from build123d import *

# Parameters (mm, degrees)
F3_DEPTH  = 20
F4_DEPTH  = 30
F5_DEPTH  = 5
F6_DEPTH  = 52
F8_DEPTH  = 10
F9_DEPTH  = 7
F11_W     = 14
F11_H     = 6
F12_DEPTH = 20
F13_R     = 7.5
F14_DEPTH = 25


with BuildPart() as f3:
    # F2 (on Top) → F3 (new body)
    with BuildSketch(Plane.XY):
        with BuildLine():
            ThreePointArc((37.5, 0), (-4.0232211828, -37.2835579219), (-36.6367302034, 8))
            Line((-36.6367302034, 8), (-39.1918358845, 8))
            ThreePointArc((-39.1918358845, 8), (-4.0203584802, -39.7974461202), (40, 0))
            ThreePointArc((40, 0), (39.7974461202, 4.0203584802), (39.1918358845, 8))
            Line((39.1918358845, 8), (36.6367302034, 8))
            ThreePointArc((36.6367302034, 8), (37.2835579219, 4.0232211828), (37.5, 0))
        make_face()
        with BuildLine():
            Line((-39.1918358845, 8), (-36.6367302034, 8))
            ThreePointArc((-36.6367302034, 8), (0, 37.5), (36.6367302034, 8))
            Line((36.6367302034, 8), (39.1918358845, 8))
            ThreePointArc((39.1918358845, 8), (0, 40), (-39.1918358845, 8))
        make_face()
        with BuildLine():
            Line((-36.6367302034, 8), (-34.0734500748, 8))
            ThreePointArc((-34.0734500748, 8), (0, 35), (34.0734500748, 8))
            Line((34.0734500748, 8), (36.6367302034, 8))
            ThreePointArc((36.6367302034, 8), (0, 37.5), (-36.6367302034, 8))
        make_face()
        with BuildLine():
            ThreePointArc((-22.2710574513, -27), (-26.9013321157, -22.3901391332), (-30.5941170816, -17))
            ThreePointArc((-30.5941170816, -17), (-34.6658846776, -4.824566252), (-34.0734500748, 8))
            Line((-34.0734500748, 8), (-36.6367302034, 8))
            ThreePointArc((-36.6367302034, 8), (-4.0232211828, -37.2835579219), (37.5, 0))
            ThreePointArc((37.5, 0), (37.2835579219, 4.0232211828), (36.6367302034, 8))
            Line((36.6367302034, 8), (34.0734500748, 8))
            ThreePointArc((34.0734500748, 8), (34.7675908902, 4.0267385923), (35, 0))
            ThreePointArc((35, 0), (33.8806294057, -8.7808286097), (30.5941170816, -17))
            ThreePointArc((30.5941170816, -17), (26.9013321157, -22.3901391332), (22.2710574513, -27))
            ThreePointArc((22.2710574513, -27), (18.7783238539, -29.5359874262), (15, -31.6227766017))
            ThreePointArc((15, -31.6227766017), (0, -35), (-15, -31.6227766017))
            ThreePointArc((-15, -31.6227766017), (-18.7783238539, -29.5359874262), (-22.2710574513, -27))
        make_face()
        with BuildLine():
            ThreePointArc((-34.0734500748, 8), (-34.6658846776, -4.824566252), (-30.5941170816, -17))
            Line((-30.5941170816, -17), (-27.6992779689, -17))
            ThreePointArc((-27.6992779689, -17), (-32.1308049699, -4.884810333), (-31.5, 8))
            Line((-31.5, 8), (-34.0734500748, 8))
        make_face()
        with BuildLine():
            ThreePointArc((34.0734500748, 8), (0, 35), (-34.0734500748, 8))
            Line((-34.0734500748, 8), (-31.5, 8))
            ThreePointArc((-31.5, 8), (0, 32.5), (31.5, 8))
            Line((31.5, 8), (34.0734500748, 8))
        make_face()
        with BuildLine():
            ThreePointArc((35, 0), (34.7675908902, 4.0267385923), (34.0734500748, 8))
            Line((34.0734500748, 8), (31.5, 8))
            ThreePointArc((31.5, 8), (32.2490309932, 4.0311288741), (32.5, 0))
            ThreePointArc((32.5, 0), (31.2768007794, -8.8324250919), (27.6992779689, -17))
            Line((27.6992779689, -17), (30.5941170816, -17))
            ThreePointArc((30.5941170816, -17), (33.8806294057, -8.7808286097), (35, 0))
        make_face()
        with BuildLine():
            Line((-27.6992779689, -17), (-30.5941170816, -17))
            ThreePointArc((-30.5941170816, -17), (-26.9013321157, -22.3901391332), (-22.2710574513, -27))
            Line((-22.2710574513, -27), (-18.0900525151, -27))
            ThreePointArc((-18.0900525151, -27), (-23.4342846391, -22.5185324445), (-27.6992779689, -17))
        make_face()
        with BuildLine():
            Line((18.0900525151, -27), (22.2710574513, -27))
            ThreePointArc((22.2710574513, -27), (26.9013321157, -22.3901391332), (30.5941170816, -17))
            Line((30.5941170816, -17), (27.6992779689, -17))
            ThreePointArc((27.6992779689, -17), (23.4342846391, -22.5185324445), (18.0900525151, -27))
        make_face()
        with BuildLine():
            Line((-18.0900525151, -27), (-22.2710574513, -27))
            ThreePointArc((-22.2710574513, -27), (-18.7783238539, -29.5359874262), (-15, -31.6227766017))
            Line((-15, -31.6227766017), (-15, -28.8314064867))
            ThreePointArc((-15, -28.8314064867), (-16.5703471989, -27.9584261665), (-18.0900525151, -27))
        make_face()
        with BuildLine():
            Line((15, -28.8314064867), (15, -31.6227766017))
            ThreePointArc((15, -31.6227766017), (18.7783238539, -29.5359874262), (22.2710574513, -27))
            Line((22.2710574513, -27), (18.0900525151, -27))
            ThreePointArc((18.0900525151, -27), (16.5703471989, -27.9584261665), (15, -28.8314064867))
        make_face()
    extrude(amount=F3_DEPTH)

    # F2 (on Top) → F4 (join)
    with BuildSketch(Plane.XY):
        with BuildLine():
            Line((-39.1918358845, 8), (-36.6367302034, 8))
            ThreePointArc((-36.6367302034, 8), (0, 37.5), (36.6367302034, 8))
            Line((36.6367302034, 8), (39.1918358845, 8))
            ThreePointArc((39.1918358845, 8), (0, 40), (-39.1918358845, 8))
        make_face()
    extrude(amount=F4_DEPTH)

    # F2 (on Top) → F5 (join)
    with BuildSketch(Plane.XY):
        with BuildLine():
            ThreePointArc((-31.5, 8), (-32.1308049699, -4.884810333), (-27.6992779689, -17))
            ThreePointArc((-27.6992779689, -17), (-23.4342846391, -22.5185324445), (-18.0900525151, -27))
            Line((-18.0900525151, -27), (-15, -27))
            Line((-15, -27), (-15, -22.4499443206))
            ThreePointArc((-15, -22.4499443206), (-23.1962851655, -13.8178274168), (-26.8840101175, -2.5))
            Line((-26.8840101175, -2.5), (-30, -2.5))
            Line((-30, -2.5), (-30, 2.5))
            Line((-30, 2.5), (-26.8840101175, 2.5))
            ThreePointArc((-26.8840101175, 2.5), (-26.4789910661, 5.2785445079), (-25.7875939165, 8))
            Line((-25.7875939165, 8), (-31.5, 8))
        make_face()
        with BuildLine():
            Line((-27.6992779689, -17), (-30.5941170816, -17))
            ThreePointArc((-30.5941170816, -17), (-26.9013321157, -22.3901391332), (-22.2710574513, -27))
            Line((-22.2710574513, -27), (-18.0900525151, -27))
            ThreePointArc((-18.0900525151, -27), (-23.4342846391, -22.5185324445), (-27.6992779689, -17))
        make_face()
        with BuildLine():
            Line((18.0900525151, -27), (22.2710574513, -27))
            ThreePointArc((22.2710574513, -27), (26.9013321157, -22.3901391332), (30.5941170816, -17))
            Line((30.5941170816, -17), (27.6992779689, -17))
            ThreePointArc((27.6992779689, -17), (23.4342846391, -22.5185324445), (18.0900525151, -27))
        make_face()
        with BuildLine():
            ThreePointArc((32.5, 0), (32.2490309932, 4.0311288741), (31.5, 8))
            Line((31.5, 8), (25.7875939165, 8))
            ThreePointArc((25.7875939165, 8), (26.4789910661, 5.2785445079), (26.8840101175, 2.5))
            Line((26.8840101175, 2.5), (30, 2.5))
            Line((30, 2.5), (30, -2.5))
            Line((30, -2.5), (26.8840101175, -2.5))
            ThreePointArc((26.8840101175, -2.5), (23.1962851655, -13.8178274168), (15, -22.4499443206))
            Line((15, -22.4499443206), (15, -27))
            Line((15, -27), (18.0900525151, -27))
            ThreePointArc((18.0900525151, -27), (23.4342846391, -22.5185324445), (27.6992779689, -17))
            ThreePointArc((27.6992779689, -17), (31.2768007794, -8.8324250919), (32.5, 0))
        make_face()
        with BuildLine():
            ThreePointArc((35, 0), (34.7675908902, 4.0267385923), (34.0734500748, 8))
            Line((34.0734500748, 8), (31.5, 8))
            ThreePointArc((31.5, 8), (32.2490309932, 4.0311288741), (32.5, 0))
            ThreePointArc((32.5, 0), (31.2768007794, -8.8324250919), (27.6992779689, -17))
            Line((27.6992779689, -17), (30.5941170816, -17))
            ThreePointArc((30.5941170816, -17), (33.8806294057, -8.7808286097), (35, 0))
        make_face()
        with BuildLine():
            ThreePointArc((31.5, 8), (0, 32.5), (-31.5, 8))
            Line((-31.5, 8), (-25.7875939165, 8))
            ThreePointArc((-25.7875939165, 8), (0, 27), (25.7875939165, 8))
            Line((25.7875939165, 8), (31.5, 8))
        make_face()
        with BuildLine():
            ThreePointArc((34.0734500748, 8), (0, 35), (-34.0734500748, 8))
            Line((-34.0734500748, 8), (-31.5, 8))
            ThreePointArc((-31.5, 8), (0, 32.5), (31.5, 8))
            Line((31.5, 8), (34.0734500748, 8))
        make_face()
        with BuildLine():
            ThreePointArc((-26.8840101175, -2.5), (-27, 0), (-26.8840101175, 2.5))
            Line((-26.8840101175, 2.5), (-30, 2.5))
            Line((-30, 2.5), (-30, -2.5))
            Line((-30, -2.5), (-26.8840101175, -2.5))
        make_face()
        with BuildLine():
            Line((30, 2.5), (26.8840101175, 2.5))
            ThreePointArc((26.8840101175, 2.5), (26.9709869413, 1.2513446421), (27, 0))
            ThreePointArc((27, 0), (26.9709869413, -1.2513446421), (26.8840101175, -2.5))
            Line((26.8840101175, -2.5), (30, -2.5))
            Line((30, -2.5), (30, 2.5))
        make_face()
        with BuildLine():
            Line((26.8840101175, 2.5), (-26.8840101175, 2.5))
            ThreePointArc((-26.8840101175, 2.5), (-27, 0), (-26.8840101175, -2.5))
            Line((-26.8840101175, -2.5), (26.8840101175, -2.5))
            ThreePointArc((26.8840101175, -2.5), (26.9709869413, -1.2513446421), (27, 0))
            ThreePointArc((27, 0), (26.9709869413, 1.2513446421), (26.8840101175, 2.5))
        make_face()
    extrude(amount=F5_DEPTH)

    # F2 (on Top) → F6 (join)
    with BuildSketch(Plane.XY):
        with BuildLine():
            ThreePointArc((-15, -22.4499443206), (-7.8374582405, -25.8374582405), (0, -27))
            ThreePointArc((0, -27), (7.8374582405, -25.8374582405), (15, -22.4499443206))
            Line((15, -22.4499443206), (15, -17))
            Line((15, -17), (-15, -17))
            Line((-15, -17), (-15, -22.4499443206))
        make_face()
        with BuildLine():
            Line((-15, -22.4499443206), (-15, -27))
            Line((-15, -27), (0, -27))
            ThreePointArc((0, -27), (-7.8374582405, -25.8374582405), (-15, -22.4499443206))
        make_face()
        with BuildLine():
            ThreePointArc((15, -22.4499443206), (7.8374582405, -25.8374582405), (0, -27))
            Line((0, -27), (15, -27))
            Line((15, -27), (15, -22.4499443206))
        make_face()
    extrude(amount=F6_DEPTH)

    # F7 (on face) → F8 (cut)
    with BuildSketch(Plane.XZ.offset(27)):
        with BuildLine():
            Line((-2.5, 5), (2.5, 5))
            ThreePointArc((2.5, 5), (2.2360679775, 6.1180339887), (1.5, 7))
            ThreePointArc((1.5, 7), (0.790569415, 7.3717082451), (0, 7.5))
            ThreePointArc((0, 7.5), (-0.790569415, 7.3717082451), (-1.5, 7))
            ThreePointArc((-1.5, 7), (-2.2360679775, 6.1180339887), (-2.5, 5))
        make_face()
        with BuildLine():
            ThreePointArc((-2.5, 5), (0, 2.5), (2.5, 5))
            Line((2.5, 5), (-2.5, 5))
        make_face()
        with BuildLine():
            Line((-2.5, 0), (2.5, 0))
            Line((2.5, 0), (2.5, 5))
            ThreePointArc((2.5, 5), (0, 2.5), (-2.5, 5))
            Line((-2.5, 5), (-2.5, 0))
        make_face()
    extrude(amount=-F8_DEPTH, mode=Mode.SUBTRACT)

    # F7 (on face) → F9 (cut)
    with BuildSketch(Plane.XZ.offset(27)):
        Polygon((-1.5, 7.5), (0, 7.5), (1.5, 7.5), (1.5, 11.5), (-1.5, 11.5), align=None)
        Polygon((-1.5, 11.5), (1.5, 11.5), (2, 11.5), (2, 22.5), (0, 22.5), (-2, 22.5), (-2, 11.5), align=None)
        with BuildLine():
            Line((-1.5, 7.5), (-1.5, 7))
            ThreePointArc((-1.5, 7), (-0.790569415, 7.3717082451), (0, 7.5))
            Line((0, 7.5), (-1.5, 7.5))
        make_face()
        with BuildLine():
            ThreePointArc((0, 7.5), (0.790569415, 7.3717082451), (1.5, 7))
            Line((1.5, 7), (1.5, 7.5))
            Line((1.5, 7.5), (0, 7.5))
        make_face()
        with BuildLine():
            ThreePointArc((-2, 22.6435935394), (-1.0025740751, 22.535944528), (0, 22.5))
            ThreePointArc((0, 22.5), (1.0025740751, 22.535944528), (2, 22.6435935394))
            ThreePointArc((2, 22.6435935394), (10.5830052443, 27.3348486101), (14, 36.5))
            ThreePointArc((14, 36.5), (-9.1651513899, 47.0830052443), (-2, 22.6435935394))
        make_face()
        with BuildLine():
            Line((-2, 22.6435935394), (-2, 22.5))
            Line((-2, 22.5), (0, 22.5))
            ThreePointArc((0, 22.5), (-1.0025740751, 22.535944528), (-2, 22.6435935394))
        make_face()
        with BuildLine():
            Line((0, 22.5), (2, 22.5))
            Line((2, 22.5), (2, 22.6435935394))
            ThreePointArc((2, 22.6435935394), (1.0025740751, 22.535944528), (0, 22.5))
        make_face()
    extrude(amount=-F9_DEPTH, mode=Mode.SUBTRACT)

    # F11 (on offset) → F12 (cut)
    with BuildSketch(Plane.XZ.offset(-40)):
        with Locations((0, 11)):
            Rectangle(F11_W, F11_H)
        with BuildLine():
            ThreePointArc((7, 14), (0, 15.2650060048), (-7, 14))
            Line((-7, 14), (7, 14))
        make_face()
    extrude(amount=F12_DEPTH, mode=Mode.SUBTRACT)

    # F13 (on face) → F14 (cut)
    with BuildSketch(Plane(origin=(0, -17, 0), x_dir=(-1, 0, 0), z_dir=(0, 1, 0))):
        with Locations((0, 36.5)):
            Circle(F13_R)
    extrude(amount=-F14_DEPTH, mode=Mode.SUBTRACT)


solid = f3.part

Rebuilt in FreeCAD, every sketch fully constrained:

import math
import FreeCAD as App
import Part
import Sketcher

V = App.Vector
Q = App.Units.Quantity

doc = App.newDocument("Part")
body = doc.addObject("PartDesign::Body", "Body")

# Sketch on XY plane
sketch1 = body.newObject("Sketcher::SketchObject", "Sketch")
sketch1.AttachmentSupport = (doc.getObject("XY_Plane"), [""])
sketch1.MapMode = "FlatFace"
sketch1.addGeometry([
    Part.ArcOfCircle(Part.Circle(V(0, 0, 0), V(0, 0, 1), 40), math.radians(168.463041), math.radians(360)),  # 0
    Part.ArcOfCircle(Part.Circle(V(0, 0, 0), V(0, 0, 1), 40), math.radians(0), math.radians(11.536959)),  # 1
    Part.ArcOfCircle(Part.Circle(V(0, 0, 0), V(0, 0, 1), 40), math.radians(11.536959), math.radians(168.463041)),  # 2
    Part.ArcOfCircle(Part.Circle(V(0, 0, 0), V(0, 0, 1), 35), math.radians(-115.376934), math.radians(-64.623066)),  # 3
    Part.LineSegment(V(-15, -31.622777, 0), V(-15, -28.831406, 0)),  # 4
    Part.ArcOfCircle(Part.Circle(V(0, 0, 0), V(0, 0, 1), 32.5), math.radians(-123.822162), math.radians(-117.486426)),  # 5
    Part.ArcOfCircle(Part.Circle(V(0, 0, 0), V(0, 0, 1), 32.5), math.radians(-148.461127), math.radians(-123.822162)),  # 6
    Part.ArcOfCircle(Part.Circle(V(0, 0, 0), V(0, 0, 1), 32.5), math.radians(165.749967), math.radians(211.538873)),  # 7
    Part.ArcOfCircle(Part.Circle(V(0, 0, 0), V(0, 0, 1), 32.5), math.radians(0), math.radians(165.749967)),  # 8
    Part.ArcOfCircle(Part.Circle(V(0, 0, 0), V(0, 0, 1), 32.5), math.radians(-31.538873), math.radians(0)),  # 9
    Part.ArcOfCircle(Part.Circle(V(0, 0, 0), V(0, 0, 1), 32.5), math.radians(-56.177838), math.radians(-31.538873)),  # 10
    Part.ArcOfCircle(Part.Circle(V(0, 0, 0), V(0, 0, 1), 32.5), math.radians(-62.513574), math.radians(-56.177838)),  # 11
    Part.LineSegment(V(15, -28.831406, 0), V(15, -31.622777, 0)),  # 12
], False)
sketch1.addConstraint([
    Sketcher.Constraint("Tangent", 0, 2, 1, 1),
    Sketcher.Constraint("Tangent", 1, 2, 2, 1),
    Sketcher.Constraint("Tangent", 2, 2, 0, 1),
    Sketcher.Constraint("Coincident", 3, 1, 4, 1),
    Sketcher.Constraint("Coincident", 4, 2, 5, 2),
    Sketcher.Constraint("Tangent", 5, 1, 6, 2),
    Sketcher.Constraint("Tangent", 6, 1, 7, 2),
    Sketcher.Constraint("Tangent", 7, 1, 8, 2),
    Sketcher.Constraint("Tangent", 8, 1, 9, 2),
    Sketcher.Constraint("Tangent", 9, 1, 10, 2),
    Sketcher.Constraint("Tangent", 10, 1, 11, 2),
    Sketcher.Constraint("Coincident", 11, 1, 12, 1),
    Sketcher.Constraint("Coincident", 12, 2, 3, 2),
    Sketcher.Constraint("Vertical", 4),
    Sketcher.Constraint("Vertical", 12),
    Sketcher.Constraint("Coincident", 0, 3, -1, 1),
    Sketcher.Constraint("Coincident", 3, 3, -1, 1),
    Sketcher.Constraint("Coincident", 5, 3, -1, 1),
    Sketcher.Constraint("Coincident", 7, 3, -1, 1),
    Sketcher.Constraint("Coincident", 9, 3, -1, 1),
    Sketcher.Constraint("Coincident", 11, 3, -1, 1),
    Sketcher.Constraint("PointOnObject", 0, 2, -1),
    Sketcher.Constraint("PointOnObject", 8, 1, -1),
    Sketcher.Constraint("Horizontal", 1, 2, 2, 2),
    Sketcher.Constraint("Horizontal", 2, 2, 7, 1),
    Sketcher.Constraint("Horizontal", 6, 1, 9, 1),
    Sketcher.Constraint("Horizontal", 5, 1, 10, 1),
    Sketcher.Constraint("Horizontal", 4, 2, 11, 1),
    Sketcher.Constraint("Radius", 0, Q("40 mm")),
    Sketcher.Constraint("Radius", 3, Q("35 mm")),
    Sketcher.Constraint("Radius", 5, Q("32.5 mm")),
    Sketcher.Constraint("DistanceY", -1, 1, 1, 2, Q("8 mm")),
    Sketcher.Constraint("DistanceX", 3, 1, -1, 1, Q("15 mm")),
    Sketcher.Constraint("DistanceY", 5, 1, -1, 1, Q("27 mm")),
    Sketcher.Constraint("DistanceY", 6, 1, -1, 1, Q("17 mm")),
])
pad1 = body.newObject("PartDesign::Pad", "Pad")
pad1.Profile = sketch1
pad1.Length = 20

# Sketch on XY plane
sketch2 = body.newObject("Sketcher::SketchObject", "Sketch001")
sketch2.AttachmentSupport = (doc.getObject("XY_Plane"), [""])
sketch2.MapMode = "FlatFace"
sketch2.addGeometry([
    Part.LineSegment(V(-39.191836, 8, 0), V(-36.63673, 8, 0)),
    Part.ArcOfCircle(Part.Circle(V(0, 0, 0), V(0, 0, 1), 37.5), math.radians(12.317766), math.radians(167.682234)),
    Part.LineSegment(V(36.63673, 8, 0), V(39.191836, 8, 0)),
    Part.ArcOfCircle(Part.Circle(V(0, 0, 0), V(0, 0, 1), 40), math.radians(11.536959), math.radians(168.463041)),
], False)
sketch2.addConstraint([
    Sketcher.Constraint("Coincident", 0, 2, 1, 2),
    Sketcher.Constraint("Coincident", 1, 1, 2, 1),
    Sketcher.Constraint("Coincident", 2, 2, 3, 1),
    Sketcher.Constraint("Coincident", 3, 2, 0, 1),
    Sketcher.Constraint("Horizontal", 0),
    Sketcher.Constraint("Horizontal", 2),
    Sketcher.Constraint("Coincident", 1, 3, -1, 1),
    Sketcher.Constraint("Coincident", 3, 3, -1, 1),
    Sketcher.Constraint("Horizontal", 0, 2, 1, 1),
    Sketcher.Constraint("Radius", 3, Q("40 mm")),
    Sketcher.Constraint("Radius", 1, Q("37.5 mm")),
    Sketcher.Constraint("DistanceY", -1, 1, 0, 2, Q("8 mm")),
])
pad2 = body.newObject("PartDesign::Pad", "Pad001")
pad2.Profile = sketch2
pad2.Length = 30

# Sketch on XY plane
sketch3 = body.newObject("Sketcher::SketchObject", "Sketch002")
sketch3.AttachmentSupport = (doc.getObject("XY_Plane"), [""])
sketch3.MapMode = "FlatFace"
sketch3.addGeometry([
    Part.ArcOfCircle(Part.Circle(V(0, 0, 0), V(0, 0, 1), 32.5), math.radians(165.749967), math.radians(211.538873)),  # 0
    Part.LineSegment(V(-27.699278, -17, 0), V(-30.594117, -17, 0)),  # 1
    Part.ArcOfCircle(Part.Circle(V(0, 0, 0), V(0, 0, 1), 35), math.radians(-150.940719), math.radians(-129.517653)),  # 2
    Part.LineSegment(V(-22.271057, -27, 0), V(-15, -27, 0)),  # 3
    Part.LineSegment(V(-15, -27, 0), V(-15, -22.449944, 0)),  # 4
    Part.ArcOfCircle(Part.Circle(V(0, 0, 0), V(0, 0, 1), 27), math.radians(-174.687225), math.radians(-123.748989)),  # 5
    Part.LineSegment(V(-26.88401, -2.5, 0), V(26.88401, -2.5, 0)),  # 6
    Part.ArcOfCircle(Part.Circle(V(0, 0, 0), V(0, 0, 1), 27), math.radians(-56.251011), math.radians(-5.312775)),  # 7
    Part.LineSegment(V(15, -22.449944, 0), V(15, -27, 0)),  # 8
    Part.LineSegment(V(15, -27, 0), V(22.271057, -27, 0)),  # 9
    Part.ArcOfCircle(Part.Circle(V(0, 0, 0), V(0, 0, 1), 35), math.radians(-50.482347), math.radians(-29.059281)),  # 10
    Part.ArcOfCircle(Part.Circle(V(0, 0, 0), V(0, 0, 1), 35), math.radians(-29.059281), math.radians(0)),  # 11
    Part.ArcOfCircle(Part.Circle(V(0, 0, 0), V(0, 0, 1), 35), math.radians(0), math.radians(13.21298)),  # 12
    Part.ArcOfCircle(Part.Circle(V(0, 0, 0), V(0, 0, 1), 35), math.radians(13.21298), math.radians(166.78702)),  # 13
    Part.LineSegment(V(-34.07345, 8, 0), V(-31.5, 8, 0)),  # 14
    Part.ArcOfCircle(Part.Circle(V(0, 0, 0), V(0, 0, 1), 27), math.radians(162.764715), math.radians(174.687225)),  # 15
    Part.ArcOfCircle(Part.Circle(V(0, 0, 0), V(0, 0, 1), 27), math.radians(17.235285), math.radians(162.764715)),  # 16
    Part.ArcOfCircle(Part.Circle(V(0, 0, 0), V(0, 0, 1), 27), math.radians(5.312775), math.radians(17.235285)),  # 17
    Part.LineSegment(V(26.88401, 2.5, 0), V(-26.88401, 2.5, 0)),  # 18
], False)
sketch3.addConstraint([
    Sketcher.Constraint("Coincident", 0, 2, 1, 1),
    Sketcher.Constraint("Coincident", 1, 2, 2, 1),
    Sketcher.Constraint("Coincident", 2, 2, 3, 1),
    Sketcher.Constraint("Coincident", 3, 2, 4, 1),
    Sketcher.Constraint("Coincident", 4, 2, 5, 2),
    Sketcher.Constraint("Coincident", 5, 1, 6, 1),
    Sketcher.Constraint("Coincident", 6, 2, 7, 2),
    Sketcher.Constraint("Coincident", 7, 1, 8, 1),
    Sketcher.Constraint("Coincident", 8, 2, 9, 1),
    Sketcher.Constraint("Coincident", 9, 2, 10, 1),
    Sketcher.Constraint("Tangent", 10, 2, 11, 1),
    Sketcher.Constraint("Tangent", 11, 2, 12, 1),
    Sketcher.Constraint("Tangent", 12, 2, 13, 1),
    Sketcher.Constraint("Coincident", 13, 2, 14, 1),
    Sketcher.Constraint("Coincident", 14, 2, 0, 1),
    Sketcher.Constraint("Tangent", 15, 1, 16, 2),
    Sketcher.Constraint("Tangent", 16, 1, 17, 2),
    Sketcher.Constraint("Coincident", 17, 1, 18, 1),
    Sketcher.Constraint("Coincident", 18, 2, 15, 2),
    Sketcher.Constraint("Horizontal", 1),
    Sketcher.Constraint("Horizontal", 3),
    Sketcher.Constraint("Vertical", 4),
    Sketcher.Constraint("Horizontal", 6),
    Sketcher.Constraint("Vertical", 8),
    Sketcher.Constraint("Horizontal", 9),
    Sketcher.Constraint("Horizontal", 14),
    Sketcher.Constraint("Horizontal", 18),
    Sketcher.Constraint("Coincident", 0, 3, -1, 1),
    Sketcher.Constraint("Coincident", 2, 3, -1, 1),
    Sketcher.Constraint("Coincident", 5, 3, -1, 1),
    Sketcher.Constraint("Coincident", 7, 3, -1, 1),
    Sketcher.Constraint("Coincident", 10, 3, -1, 1),
    Sketcher.Constraint("Coincident", 12, 3, -1, 1),
    Sketcher.Constraint("Coincident", 15, 3, -1, 1),
    Sketcher.Constraint("Coincident", 17, 3, -1, 1),
    Sketcher.Constraint("Equal", 5, 7),
    Sketcher.Constraint("Equal", 2, 10),
    Sketcher.Constraint("Equal", 12, 13),
    Sketcher.Constraint("Equal", 7, 15),
    Sketcher.Constraint("Symmetric", 3, 2, 8, 2, -2),
    Sketcher.Constraint("PointOnObject", 11, 2, -1),
    Sketcher.Constraint("Horizontal", 1, 2, 10, 2),
    Sketcher.Constraint("Horizontal", 12, 2, 13, 2),
    Sketcher.Constraint("Horizontal", 14, 2, 15, 1),
    Sketcher.Constraint("Horizontal", 15, 1, 16, 1),
    Sketcher.Constraint("Vertical", 6, 2, 17, 1),
    Sketcher.Constraint("Radius", 2, Q("35 mm")),
    Sketcher.Constraint("Radius", 5, Q("27 mm")),
    Sketcher.Constraint("Radius", 0, Q("32.5 mm")),
    Sketcher.Constraint("DistanceY", 0, 2, -1, 1, Q("17 mm")),
    Sketcher.Constraint("DistanceY", 2, 2, -1, 1, Q("27 mm")),
    Sketcher.Constraint("DistanceX", 3, 2, -1, 1, Q("15 mm")),
    Sketcher.Constraint("DistanceY", -1, 1, 12, 2, Q("8 mm")),
    Sketcher.Constraint("DistanceY", 6, 2, 17, 1, Q("5 mm")),
])
pad3 = body.newObject("PartDesign::Pad", "Pad002")
pad3.Profile = sketch3
pad3.Length = 5

# Sketch on XY plane
sketch4 = body.newObject("Sketcher::SketchObject", "Sketch003")
sketch4.AttachmentSupport = (doc.getObject("XY_Plane"), [""])
sketch4.MapMode = "FlatFace"
sketch4.addGeometry([
    Part.LineSegment(V(15, -17, 0), V(-15, -17, 0)),
    Part.LineSegment(V(-15, -17, 0), V(-15, -27, 0)),
    Part.LineSegment(V(-15, -27, 0), V(15, -27, 0)),
    Part.LineSegment(V(15, -27, 0), V(15, -17, 0)),
], False)
sketch4.addConstraint([
    Sketcher.Constraint("Coincident", 0, 2, 1, 1),
    Sketcher.Constraint("Coincident", 1, 2, 2, 1),
    Sketcher.Constraint("Coincident", 2, 2, 3, 1),
    Sketcher.Constraint("Coincident", 3, 2, 0, 1),
    Sketcher.Constraint("Horizontal", 0),
    Sketcher.Constraint("Vertical", 1),
    Sketcher.Constraint("Horizontal", 2),
    Sketcher.Constraint("Vertical", 3),
    Sketcher.Constraint("DistanceX", 0, 2, 0, 1, Q("30 mm")),
    Sketcher.Constraint("DistanceY", 1, 2, 1, 1, Q("10 mm")),
    Sketcher.Constraint("DistanceX", 0, 2, -1, 1, Q("15 mm")),
    Sketcher.Constraint("DistanceY", 0, 2, -1, 1, Q("17 mm")),
])
pad4 = body.newObject("PartDesign::Pad", "Pad003")
pad4.Profile = sketch4
pad4.Length = 52

# Sketch on XZ plane
sketch5 = body.newObject("Sketcher::SketchObject", "Sketch004")
sketch5.AttachmentSupport = (doc.getObject("XZ_Plane"), [""])
sketch5.MapMode = "FlatFace"
sketch5.AttachmentOffset = App.Placement(V(0, 0, 27), App.Rotation())
sketch5.addGeometry([
    Part.ArcOfCircle(Part.Circle(V(0, 5, 0), V(0, 0, 1), 2.5), math.radians(0), math.radians(53.130102)),  # 0
    Part.ArcOfCircle(Part.Circle(V(0, 5, 0), V(0, 0, 1), 2.5), math.radians(53.130102), math.radians(90)),  # 1
    Part.ArcOfCircle(Part.Circle(V(0, 5, 0), V(0, 0, 1), 2.5), math.radians(90), math.radians(126.869898)),  # 2
    Part.ArcOfCircle(Part.Circle(V(0, 5, 0), V(0, 0, 1), 2.5), math.radians(126.869898), math.radians(180)),  # 3
    Part.LineSegment(V(-2.5, 5, 0), V(-2.5, 0, 0)),  # 4
    Part.LineSegment(V(-2.5, 0, 0), V(2.5, 0, 0)),  # 5
    Part.LineSegment(V(2.5, 0, 0), V(2.5, 5, 0)),  # 6
], False)
sketch5.addConstraint([
    Sketcher.Constraint("Tangent", 0, 2, 1, 1),
    Sketcher.Constraint("Tangent", 1, 2, 2, 1),
    Sketcher.Constraint("Tangent", 2, 2, 3, 1),
    Sketcher.Constraint("Tangent", 3, 2, 4, 1),
    Sketcher.Constraint("Coincident", 4, 2, 5, 1),
    Sketcher.Constraint("Coincident", 5, 2, 6, 1),
    Sketcher.Constraint("Tangent", 6, 2, 0, 1),
    Sketcher.Constraint("Vertical", 4),
    Sketcher.Constraint("Horizontal", 5),
    Sketcher.Constraint("Vertical", 6),
    Sketcher.Constraint("Coincident", 2, 3, 0, 3),
    Sketcher.Constraint("Equal", 2, 3),
    Sketcher.Constraint("Symmetric", 4, 2, 5, 2, -1, 1),
    Sketcher.Constraint("PointOnObject", 1, 2, -2),
    Sketcher.Constraint("Horizontal", 0, 2, 2, 2),
    Sketcher.Constraint("Equal", 5, 4),
    Sketcher.Constraint("Radius", 0, Q("2.5 mm")),
    Sketcher.Constraint("DistanceY", -1, 1, 0, 2, Q("7 mm")),
])
pocket1 = body.newObject("PartDesign::Pocket", "Pocket")
pocket1.Profile = sketch5
pocket1.Length = 10

# Sketch on XZ plane
sketch6 = body.newObject("Sketcher::SketchObject", "Sketch005")
sketch6.AttachmentSupport = (doc.getObject("XZ_Plane"), [""])
sketch6.MapMode = "FlatFace"
sketch6.AttachmentOffset = App.Placement(V(0, 0, 27), App.Rotation())
sketch6.addGeometry([
    Part.LineSegment(V(1.5, 11.5, 0), V(2, 11.5, 0)),  # 0
    Part.LineSegment(V(2, 11.5, 0), V(2, 22.643594, 0)),  # 1
    Part.ArcOfCircle(Part.Circle(V(0, 36.5, 0), V(0, 0, 1), 14), math.radians(-81.786789), math.radians(261.786789)),  # 2
    Part.LineSegment(V(-2, 22.643594, 0), V(-2, 11.5, 0)),  # 3
    Part.LineSegment(V(-2, 11.5, 0), V(-1.5, 11.5, 0)),  # 4
    Part.LineSegment(V(-1.5, 11.5, 0), V(-1.5, 7, 0)),  # 5
    Part.ArcOfCircle(Part.Circle(V(0, 5, 0), V(0, 0, 1), 2.5), math.radians(90), math.radians(126.869898)),  # 6
    Part.ArcOfCircle(Part.Circle(V(0, 5, 0), V(0, 0, 1), 2.5), math.radians(53.130102), math.radians(90)),  # 7
    Part.LineSegment(V(1.5, 7, 0), V(1.5, 11.5, 0)),  # 8
], False)
sketch6.addConstraint([
    Sketcher.Constraint("Coincident", 0, 2, 1, 1),
    Sketcher.Constraint("Coincident", 1, 2, 2, 1),
    Sketcher.Constraint("Coincident", 2, 2, 3, 1),
    Sketcher.Constraint("Coincident", 3, 2, 4, 1),
    Sketcher.Constraint("Coincident", 4, 2, 5, 1),
    Sketcher.Constraint("Coincident", 5, 2, 6, 2),
    Sketcher.Constraint("Tangent", 6, 1, 7, 2),
    Sketcher.Constraint("Coincident", 7, 1, 8, 1),
    Sketcher.Constraint("Coincident", 8, 2, 0, 1),
    Sketcher.Constraint("Horizontal", 0),
    Sketcher.Constraint("Vertical", 1),
    Sketcher.Constraint("Vertical", 3),
    Sketcher.Constraint("Horizontal", 4),
    Sketcher.Constraint("Vertical", 5),
    Sketcher.Constraint("Vertical", 8),
    Sketcher.Constraint("Equal", 6, 7),
    Sketcher.Constraint("Symmetric", 1, 2, 2, 2, -2),
    Sketcher.Constraint("Symmetric", 5, 2, 7, 1, -2),
    Sketcher.Constraint("PointOnObject", 6, 1, -2),
    Sketcher.Constraint("Horizontal", 0, 2, 3, 2),
    Sketcher.Constraint("Radius", 2, Q("14 mm")),
    Sketcher.Constraint("Radius", 6, Q("2.5 mm")),
    Sketcher.Constraint("DistanceX", 0, 1, 0, 2, Q("0.5 mm")),
    Sketcher.Constraint("DistanceY", 5, 2, 5, 1, Q("4.5 mm")),
    Sketcher.Constraint("DistanceY", -1, 1, 6, 3, Q("5 mm")),
    Sketcher.Constraint("DistanceX", -1, 1, 0, 2, Q("2 mm")),
    Sketcher.Constraint("DistanceY", 0, 2, 2, 3, Q("25 mm")),
])
pocket2 = body.newObject("PartDesign::Pocket", "Pocket001")
pocket2.Profile = sketch6
pocket2.Length = 7

# Sketch on XZ plane
sketch7 = body.newObject("Sketcher::SketchObject", "Sketch006")
sketch7.AttachmentSupport = (doc.getObject("XZ_Plane"), [""])
sketch7.MapMode = "FlatFace"
sketch7.AttachmentOffset = App.Placement(V(0, 0, -40), App.Rotation())
sketch7.addGeometry([
    Part.LineSegment(V(-7, 14, 0), V(-7, 8, 0)),
    Part.LineSegment(V(-7, 8, 0), V(7, 8, 0)),
    Part.LineSegment(V(7, 8, 0), V(7, 14, 0)),
    Part.ArcOfCircle(Part.Circle(V(0, -4.734994, 0), V(0, 0, 1), 20), math.radians(69.512685), math.radians(110.487315)),
], False)
sketch7.addConstraint([
    Sketcher.Constraint("Coincident", 0, 2, 1, 1),
    Sketcher.Constraint("Coincident", 1, 2, 2, 1),
    Sketcher.Constraint("Coincident", 2, 2, 3, 1),
    Sketcher.Constraint("Coincident", 3, 2, 0, 1),
    Sketcher.Constraint("Vertical", 0),
    Sketcher.Constraint("Horizontal", 1),
    Sketcher.Constraint("Vertical", 2),
    Sketcher.Constraint("Symmetric", 2, 2, 3, 2, -2),
    Sketcher.Constraint("Radius", 3, Q("20 mm")),
    Sketcher.Constraint("DistanceX", 1, 1, 1, 2, Q("14 mm")),
    Sketcher.Constraint("DistanceY", 0, 2, 0, 1, Q("6 mm")),
    Sketcher.Constraint("DistanceY", -1, 1, 0, 2, Q("8 mm")),
])
pocket3 = body.newObject("PartDesign::Pocket", "Pocket002")
pocket3.Profile = sketch7
pocket3.Length = 20
pocket3.Reversed = True

# Sketch on XZ plane
sketch8 = body.newObject("Sketcher::SketchObject", "Sketch007")
sketch8.AttachmentSupport = (doc.getObject("XZ_Plane"), [""])
sketch8.MapMode = "FlatFace"
sketch8.AttachmentOffset = App.Placement(V(0, 0, 17), App.Rotation())
sketch8.addGeometry(Part.Circle(V(0, 36.5, 0), V(0, 0, 1), 7.5), False)
sketch8.addConstraint([
    Sketcher.Constraint("PointOnObject", 0, 3, -2),
    Sketcher.Constraint("Diameter", 0, Q("15 mm")),
    Sketcher.Constraint("DistanceY", -1, 1, 0, 3, Q("36.5 mm")),
])
pocket4 = body.newObject("PartDesign::Pocket", "Pocket003")
pocket4.Profile = sketch8
pocket4.Length = 25
pocket4.Reversed = True

doc.recompute()
